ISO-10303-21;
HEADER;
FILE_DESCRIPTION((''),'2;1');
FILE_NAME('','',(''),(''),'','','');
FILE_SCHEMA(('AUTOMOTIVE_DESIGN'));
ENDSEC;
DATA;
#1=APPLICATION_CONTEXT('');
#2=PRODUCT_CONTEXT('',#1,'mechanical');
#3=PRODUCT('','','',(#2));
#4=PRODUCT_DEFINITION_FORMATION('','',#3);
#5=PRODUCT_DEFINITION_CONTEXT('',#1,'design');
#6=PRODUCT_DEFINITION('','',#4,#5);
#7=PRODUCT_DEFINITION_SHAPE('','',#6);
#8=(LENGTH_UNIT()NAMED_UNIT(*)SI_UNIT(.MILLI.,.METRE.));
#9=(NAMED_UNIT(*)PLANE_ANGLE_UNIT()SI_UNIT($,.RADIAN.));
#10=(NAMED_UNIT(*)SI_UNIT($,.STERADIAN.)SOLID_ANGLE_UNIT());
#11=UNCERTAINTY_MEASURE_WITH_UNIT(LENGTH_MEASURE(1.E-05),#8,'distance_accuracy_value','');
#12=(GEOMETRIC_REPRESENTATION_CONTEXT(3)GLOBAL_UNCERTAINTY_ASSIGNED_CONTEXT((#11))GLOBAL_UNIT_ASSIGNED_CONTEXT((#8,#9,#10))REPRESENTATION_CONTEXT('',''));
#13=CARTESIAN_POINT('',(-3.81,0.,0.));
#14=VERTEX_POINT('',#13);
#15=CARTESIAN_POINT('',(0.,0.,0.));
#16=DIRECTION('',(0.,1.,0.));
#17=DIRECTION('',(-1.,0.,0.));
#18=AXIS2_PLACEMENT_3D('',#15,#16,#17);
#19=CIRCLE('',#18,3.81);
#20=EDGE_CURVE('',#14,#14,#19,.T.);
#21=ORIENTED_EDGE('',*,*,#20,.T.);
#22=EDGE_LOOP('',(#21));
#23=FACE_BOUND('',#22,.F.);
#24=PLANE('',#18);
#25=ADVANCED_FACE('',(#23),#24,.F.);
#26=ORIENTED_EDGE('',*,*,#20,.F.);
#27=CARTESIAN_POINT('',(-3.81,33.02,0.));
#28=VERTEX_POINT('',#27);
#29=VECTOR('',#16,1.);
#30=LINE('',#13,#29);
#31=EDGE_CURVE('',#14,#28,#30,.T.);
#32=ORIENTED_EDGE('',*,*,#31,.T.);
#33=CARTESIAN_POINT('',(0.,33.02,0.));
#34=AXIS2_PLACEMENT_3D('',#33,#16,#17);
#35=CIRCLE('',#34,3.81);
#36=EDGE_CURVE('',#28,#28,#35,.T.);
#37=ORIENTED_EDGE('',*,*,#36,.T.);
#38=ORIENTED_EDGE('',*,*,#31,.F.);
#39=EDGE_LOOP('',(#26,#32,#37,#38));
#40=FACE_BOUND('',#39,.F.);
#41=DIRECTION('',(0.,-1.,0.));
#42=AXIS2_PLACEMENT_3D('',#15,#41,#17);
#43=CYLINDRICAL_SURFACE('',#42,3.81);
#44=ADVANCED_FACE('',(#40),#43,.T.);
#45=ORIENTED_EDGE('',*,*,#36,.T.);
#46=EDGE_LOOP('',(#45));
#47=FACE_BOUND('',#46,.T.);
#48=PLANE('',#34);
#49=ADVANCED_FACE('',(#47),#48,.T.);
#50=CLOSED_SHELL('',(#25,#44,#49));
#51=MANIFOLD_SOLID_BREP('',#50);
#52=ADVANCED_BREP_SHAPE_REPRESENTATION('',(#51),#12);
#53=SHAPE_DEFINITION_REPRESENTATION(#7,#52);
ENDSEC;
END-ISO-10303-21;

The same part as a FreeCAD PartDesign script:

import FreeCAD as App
import Part
import Sketcher
from FreeCAD import Vector
Q = App.Units.Quantity

doc = App.newDocument("Part")
body = doc.addObject("PartDesign::Body", "Body")

# Sketch on XZ plane
sketch1 = doc.addObject("Sketcher::SketchObject", "Sketch")
body.addObject(sketch1)
sketch1.AttachmentSupport = (doc.XZ_Plane, [""])
sketch1.MapMode = "FlatFace"
sketch1.addGeometry(Part.Circle(Vector(0, 0, 0), Vector(0, 0, 1), 3.8), False)
sketch1.addConstraint([
    Sketcher.Constraint("Coincident", 0, 3, -1, 1),
    Sketcher.Constraint("Diameter", 0, Q("0.3 in")),
])
pad1 = doc.addObject("PartDesign::Pad", "Pad")
body.addObject(pad1)
pad1.Profile = sketch1
pad1.Length = Q("1.3 in")
pad1.Reversed = True

doc.recompute()
